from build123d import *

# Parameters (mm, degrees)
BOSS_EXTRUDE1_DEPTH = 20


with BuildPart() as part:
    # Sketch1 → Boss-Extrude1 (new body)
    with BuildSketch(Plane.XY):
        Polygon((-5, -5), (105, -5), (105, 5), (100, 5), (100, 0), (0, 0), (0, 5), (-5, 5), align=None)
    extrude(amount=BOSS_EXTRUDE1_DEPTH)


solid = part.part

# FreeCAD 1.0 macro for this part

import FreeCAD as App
import Part
import Sketcher
from FreeCAD import Vector
Q = App.Units.Quantity

doc = App.newDocument("Part")
body = doc.addObject("PartDesign::Body", "Body")

# Sketch on XY plane
sketch1 = body.newObject("Sketcher::SketchObject", "Sketch")
sketch1.AttachmentSupport = (doc.getObject("XY_Plane"), [""])
sketch1.MapMode = "FlatFace"
sketch1.addGeometry([
    Part.LineSegment(Vector(-5, -5, 0), Vector(105, -5, 0)),  # 0
    Part.LineSegment(Vector(105, -5, 0), Vector(105, 5, 0)),  # 1
    Part.LineSegment(Vector(105, 5, 0), Vector(100, 5, 0)),  # 2
    Part.LineSegment(Vector(100, 5, 0), Vector(100, 0, 0)),  # 3
    Part.LineSegment(Vector(100, 0, 0), Vector(0, 0, 0)),  # 4
    Part.LineSegment(Vector(0, 0, 0), Vector(0, 5, 0)),  # 5
    Part.LineSegment(Vector(0, 5, 0), Vector(-5, 5, 0)),  # 6
    Part.LineSegment(Vector(-5, 5, 0), Vector(-5, -5, 0)),  # 7
], False)
sketch1.addConstraint([
    Sketcher.Constraint("Coincident", 0, 2, 1, 1),
    Sketcher.Constraint("Coincident", 1, 2, 2, 1),
    Sketcher.Constraint("Coincident", 2, 2, 3, 1),
    Sketcher.Constraint("Coincident", 3, 2, 4, 1),
    Sketcher.Constraint("Coincident", 4, 2, 5, 1),
    Sketcher.Constraint("Coincident", 5, 2, 6, 1),
    Sketcher.Constraint("Coincident", 6, 2, 7, 1),
    Sketcher.Constraint("Coincident", 7, 2, 0, 1),
    Sketcher.Constraint("Horizontal", 0),
    Sketcher.Constraint("Vertical", 1),
    Sketcher.Constraint("Horizontal", 2),
    Sketcher.Constraint("Vertical", 3),
    Sketcher.Constraint("Horizontal", 4),
    Sketcher.Constraint("Vertical", 5),
    Sketcher.Constraint("Horizontal", 6),
    Sketcher.Constraint("Vertical", 7),
    Sketcher.Constraint("Coincident", 4, 2, -1, 1),
    Sketcher.Constraint("Horizontal", 2, 2, 5, 2),
    Sketcher.Constraint("Equal", 2, 6),
    Sketcher.Constraint("Equal", 6, 3),
    Sketcher.Constraint("DistanceX", 0, 1, 0, 2, Q("110 mm")),
    Sketcher.Constraint("DistanceX", 2, 2, 2, 1, Q("5 mm")),
    Sketcher.Constraint("DistanceY", 1, 1, 1, 2, Q("10 mm")),
])
pad1 = body.newObject("PartDesign::Pad", "Pad")
pad1.Profile = sketch1
pad1.Length = 20

doc.recompute()
